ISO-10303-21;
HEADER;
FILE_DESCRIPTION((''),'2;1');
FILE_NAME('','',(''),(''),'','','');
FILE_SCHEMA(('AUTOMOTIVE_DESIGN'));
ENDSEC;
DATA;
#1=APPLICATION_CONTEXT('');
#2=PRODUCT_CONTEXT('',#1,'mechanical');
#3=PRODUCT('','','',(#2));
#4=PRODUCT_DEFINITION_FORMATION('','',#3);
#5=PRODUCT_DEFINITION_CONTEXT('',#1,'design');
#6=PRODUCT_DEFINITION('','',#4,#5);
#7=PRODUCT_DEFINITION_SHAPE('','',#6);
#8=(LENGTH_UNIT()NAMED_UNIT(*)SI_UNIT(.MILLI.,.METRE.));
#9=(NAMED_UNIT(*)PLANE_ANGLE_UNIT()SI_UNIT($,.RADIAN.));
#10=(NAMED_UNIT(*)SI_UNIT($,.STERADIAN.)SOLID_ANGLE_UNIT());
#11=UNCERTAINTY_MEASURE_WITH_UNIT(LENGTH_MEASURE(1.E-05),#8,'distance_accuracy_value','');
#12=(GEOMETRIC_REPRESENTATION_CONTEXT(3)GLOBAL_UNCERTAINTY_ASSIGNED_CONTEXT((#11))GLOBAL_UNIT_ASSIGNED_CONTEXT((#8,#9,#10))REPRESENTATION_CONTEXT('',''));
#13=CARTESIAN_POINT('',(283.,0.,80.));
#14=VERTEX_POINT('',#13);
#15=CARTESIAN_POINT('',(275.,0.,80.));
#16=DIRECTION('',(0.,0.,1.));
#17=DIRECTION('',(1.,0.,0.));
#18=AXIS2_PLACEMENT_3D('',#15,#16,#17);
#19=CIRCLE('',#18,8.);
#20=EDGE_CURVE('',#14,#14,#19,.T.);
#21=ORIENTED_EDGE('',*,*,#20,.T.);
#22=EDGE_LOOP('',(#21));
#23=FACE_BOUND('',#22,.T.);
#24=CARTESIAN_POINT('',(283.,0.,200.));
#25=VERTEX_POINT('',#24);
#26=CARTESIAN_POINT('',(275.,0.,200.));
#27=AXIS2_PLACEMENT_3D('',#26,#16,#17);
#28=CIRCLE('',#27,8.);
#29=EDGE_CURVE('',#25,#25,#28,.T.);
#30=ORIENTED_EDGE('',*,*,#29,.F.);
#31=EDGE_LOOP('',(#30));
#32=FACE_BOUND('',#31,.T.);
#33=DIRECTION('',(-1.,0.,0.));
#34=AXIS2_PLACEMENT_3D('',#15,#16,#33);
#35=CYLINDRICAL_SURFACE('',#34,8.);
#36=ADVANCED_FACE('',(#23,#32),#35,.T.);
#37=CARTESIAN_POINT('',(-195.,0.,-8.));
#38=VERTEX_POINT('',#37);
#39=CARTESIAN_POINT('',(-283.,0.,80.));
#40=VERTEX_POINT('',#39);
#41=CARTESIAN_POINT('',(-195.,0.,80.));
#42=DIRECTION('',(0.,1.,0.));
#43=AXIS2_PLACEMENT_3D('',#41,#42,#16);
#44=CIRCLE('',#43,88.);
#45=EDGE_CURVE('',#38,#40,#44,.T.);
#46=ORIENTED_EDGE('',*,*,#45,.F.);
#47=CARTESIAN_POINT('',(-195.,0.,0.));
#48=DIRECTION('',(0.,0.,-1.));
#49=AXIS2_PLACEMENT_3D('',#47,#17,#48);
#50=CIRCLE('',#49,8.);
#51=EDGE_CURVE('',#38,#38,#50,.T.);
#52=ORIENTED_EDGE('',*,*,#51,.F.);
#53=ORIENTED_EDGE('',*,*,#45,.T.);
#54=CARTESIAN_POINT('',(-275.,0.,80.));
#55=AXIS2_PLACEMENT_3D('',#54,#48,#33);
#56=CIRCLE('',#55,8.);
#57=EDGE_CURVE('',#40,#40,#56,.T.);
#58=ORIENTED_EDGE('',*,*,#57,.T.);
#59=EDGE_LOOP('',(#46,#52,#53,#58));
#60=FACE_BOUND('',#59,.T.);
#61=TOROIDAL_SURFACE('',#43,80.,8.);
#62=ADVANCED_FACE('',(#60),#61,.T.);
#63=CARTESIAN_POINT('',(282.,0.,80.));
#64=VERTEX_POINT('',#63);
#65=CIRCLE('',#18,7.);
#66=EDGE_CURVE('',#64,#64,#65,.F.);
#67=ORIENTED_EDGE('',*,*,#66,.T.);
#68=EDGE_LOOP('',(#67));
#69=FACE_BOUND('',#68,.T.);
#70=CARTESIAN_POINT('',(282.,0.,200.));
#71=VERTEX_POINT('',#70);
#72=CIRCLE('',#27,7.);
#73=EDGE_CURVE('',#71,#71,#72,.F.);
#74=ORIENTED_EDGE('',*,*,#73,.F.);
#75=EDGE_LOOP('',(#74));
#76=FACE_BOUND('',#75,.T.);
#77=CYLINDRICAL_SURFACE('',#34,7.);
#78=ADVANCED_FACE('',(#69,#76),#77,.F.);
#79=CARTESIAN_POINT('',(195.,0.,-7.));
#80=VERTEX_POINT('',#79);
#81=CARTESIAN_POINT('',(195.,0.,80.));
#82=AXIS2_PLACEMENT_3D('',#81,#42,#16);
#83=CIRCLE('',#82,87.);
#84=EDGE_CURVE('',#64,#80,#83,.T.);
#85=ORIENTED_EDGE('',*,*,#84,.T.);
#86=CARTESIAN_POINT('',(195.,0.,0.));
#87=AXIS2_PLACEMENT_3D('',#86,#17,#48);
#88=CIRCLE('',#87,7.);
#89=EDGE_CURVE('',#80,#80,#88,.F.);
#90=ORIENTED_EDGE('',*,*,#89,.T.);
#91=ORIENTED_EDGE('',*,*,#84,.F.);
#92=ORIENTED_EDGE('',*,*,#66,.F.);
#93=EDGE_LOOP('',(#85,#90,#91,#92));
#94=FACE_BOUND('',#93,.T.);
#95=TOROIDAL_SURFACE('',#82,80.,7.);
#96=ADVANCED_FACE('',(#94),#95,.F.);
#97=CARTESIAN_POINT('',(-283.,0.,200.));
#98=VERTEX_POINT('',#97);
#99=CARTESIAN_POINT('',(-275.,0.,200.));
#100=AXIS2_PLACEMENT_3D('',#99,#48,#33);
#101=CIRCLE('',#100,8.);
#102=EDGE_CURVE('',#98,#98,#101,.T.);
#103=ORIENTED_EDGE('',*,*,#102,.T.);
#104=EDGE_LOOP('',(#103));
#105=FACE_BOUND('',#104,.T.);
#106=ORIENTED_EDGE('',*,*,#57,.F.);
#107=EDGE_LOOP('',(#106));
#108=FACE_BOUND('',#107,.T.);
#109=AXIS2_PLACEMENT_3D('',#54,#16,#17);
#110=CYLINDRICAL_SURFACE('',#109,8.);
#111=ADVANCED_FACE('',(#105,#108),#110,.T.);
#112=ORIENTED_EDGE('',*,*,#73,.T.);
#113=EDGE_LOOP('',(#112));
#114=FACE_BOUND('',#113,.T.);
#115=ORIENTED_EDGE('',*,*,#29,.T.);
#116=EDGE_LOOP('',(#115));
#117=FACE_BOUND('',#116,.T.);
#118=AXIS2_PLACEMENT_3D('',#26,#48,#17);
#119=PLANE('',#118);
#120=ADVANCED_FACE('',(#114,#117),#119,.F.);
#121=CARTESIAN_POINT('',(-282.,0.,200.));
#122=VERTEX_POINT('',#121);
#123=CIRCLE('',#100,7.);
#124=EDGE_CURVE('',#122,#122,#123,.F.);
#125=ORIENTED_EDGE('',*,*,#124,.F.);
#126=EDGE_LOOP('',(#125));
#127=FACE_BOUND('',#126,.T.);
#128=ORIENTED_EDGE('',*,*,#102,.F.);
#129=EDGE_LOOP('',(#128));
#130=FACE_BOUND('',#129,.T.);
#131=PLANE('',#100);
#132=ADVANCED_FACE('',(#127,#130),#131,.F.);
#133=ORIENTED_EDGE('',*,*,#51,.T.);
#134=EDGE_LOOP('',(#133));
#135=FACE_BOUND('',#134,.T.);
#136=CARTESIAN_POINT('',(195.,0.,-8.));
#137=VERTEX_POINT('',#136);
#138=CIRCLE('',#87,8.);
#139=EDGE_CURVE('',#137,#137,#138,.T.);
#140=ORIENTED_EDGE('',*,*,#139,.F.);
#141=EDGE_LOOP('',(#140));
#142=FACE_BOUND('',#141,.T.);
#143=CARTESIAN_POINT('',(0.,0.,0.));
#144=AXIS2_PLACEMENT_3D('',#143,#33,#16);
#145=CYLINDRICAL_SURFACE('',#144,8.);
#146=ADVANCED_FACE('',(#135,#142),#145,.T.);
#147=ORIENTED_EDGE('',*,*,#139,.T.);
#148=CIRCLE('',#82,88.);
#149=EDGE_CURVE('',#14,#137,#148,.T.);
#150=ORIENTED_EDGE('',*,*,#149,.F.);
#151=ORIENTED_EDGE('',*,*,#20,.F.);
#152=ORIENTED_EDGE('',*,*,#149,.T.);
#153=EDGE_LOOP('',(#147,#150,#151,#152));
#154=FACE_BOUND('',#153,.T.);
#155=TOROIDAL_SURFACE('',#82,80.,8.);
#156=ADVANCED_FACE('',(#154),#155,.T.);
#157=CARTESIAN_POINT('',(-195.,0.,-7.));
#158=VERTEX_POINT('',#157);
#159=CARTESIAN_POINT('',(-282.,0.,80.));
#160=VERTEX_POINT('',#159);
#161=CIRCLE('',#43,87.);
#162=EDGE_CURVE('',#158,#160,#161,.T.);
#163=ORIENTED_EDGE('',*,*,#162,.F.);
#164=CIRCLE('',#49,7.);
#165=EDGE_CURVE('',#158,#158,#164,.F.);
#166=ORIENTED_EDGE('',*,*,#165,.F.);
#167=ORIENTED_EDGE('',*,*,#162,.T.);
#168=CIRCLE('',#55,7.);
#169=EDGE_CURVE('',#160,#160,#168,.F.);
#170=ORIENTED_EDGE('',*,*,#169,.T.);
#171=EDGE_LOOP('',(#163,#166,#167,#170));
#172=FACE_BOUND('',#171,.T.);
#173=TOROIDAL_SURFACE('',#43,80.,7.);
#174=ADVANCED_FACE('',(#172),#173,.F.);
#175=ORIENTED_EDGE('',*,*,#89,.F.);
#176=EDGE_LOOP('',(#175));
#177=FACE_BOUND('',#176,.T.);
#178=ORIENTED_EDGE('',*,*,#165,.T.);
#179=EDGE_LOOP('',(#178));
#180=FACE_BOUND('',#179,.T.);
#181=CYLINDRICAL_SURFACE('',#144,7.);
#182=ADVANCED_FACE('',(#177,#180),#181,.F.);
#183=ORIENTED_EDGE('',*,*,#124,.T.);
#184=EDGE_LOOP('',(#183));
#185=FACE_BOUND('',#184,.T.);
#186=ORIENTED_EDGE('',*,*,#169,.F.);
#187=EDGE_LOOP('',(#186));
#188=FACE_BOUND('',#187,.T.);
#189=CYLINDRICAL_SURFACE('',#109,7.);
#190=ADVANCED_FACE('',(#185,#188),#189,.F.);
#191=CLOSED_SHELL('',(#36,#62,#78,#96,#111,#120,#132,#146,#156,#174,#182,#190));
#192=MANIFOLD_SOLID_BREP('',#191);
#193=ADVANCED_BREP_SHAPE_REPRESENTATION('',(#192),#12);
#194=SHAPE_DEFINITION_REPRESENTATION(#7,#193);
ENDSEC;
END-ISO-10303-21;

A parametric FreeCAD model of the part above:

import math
import FreeCAD as App
import Part
import Sketcher

doc = App.newDocument("Part")
params = doc.addObject("Spreadsheet::Sheet", "Params")
for row, (alias, value) in enumerate([
    ("sketch1_diameter", "16 mm"),
    ("sketch1_diameter2", "14 mm"),
    ("sketch2_radius", "80 mm"),
    ("sketch2_width", "195 mm"),
    ("sketch2_height", "120 mm"),
], start=1):
    params.set(f"A{row}", alias)
    params.set(f"B{row}", "=" + value)
    params.setAlias(f"B{row}", alias)

body = doc.addObject("PartDesign::Body", "Body")

# Sketch on YZ plane
sketch1 = doc.addObject("Sketcher::SketchObject", "Sketch")
body.addObject(sketch1)
sketch1.AttachmentSupport = (doc.YZ_Plane, [""])
sketch1.MapMode = "FlatFace"
sketch1.addGeometry(Part.Circle(App.Vector(0, 0, 0), App.Vector(0, 0, 1), 8), False)
sketch1.addGeometry(Part.Circle(App.Vector(0, 0, 0), App.Vector(0, 0, 1), 7), False)
sketch1.addConstraint(Sketcher.Constraint("Coincident", 0, 3, -1, 1))
sketch1.addConstraint(Sketcher.Constraint("Coincident", 1, 3, -1, 1))
sketch1.addConstraint(Sketcher.Constraint("Diameter", 0, 16.0))
sketch1.addConstraint(Sketcher.Constraint("Diameter", 1, 14.0))
sketch1.setExpression("Constraints[2]", "Params.sketch1_diameter")
sketch1.setExpression("Constraints[3]", "Params.sketch1_diameter2")

# Sketch on XZ plane
sketch2 = doc.addObject("Sketcher::SketchObject", "Sketch001")
body.addObject(sketch2)
sketch2.AttachmentSupport = (doc.XZ_Plane, [""])
sketch2.MapMode = "FlatFace"
sketch2.addGeometry(Part.LineSegment(App.Vector(-275, 200, 0), App.Vector(-275, 80, 0)), False)
sketch2.addGeometry(Part.ArcOfCircle(Part.Circle(App.Vector(-195, 80, 0), App.Vector(0, 0, 1), 80), math.radians(180), math.radians(270)), False)
sketch2.addGeometry(Part.LineSegment(App.Vector(-195, 0, 0), App.Vector(0, 0, 0)), False)
sketch2.addConstraint(Sketcher.Constraint("Tangent", 0, 2, 1, 1))
sketch2.addConstraint(Sketcher.Constraint("Tangent", 1, 2, 2, 1))
sketch2.addConstraint(Sketcher.Constraint("Vertical", 0))
sketch2.addConstraint(Sketcher.Constraint("Horizontal", 2))
sketch2.addConstraint(Sketcher.Constraint("Coincident", 2, 2, -1, 1))
sketch2.addConstraint(Sketcher.Constraint("Radius", 1, 80.0))
sketch2.addConstraint(Sketcher.Constraint("DistanceX", 2, 1, 2, 2, 195.0))
sketch2.addConstraint(Sketcher.Constraint("DistanceY", 0, 2, 0, 1, 120.0))
sketch2.setExpression("Constraints[5]", "Params.sketch2_radius")
sketch2.setExpression("Constraints[6]", "Params.sketch2_width")
sketch2.setExpression("Constraints[7]", "Params.sketch2_height")
doc.recompute()

additivepipe = doc.addObject("PartDesign::AdditivePipe", "AdditivePipe")
body.addObject(additivepipe)
additivepipe.Profile = sketch1
additivepipe.Spine = (sketch2, ["Edge1", "Edge2", "Edge3"])
body2 = doc.addObject("PartDesign::Body", "Body001")
doc.recompute()

body2.BaseFeature = body
doc.recompute()

mirroring = doc.addObject("Part::Mirroring", "Mirroring")
mirroring.Source = body
mirroring.Base = App.Vector(0, 0, 0)
mirroring.Normal = App.Vector(1, 0, 0)
body3 = doc.addObject("PartDesign::Body", "Body002")
body3.BaseFeature = mirroring
boolean = doc.addObject("PartDesign::Boolean", "Boolean")
body2.addObject(boolean)
boolean.Type = "Fuse"
boolean.addObjects([body3])
doc.recompute()
mirroring.Visibility = False

doc.recompute()
